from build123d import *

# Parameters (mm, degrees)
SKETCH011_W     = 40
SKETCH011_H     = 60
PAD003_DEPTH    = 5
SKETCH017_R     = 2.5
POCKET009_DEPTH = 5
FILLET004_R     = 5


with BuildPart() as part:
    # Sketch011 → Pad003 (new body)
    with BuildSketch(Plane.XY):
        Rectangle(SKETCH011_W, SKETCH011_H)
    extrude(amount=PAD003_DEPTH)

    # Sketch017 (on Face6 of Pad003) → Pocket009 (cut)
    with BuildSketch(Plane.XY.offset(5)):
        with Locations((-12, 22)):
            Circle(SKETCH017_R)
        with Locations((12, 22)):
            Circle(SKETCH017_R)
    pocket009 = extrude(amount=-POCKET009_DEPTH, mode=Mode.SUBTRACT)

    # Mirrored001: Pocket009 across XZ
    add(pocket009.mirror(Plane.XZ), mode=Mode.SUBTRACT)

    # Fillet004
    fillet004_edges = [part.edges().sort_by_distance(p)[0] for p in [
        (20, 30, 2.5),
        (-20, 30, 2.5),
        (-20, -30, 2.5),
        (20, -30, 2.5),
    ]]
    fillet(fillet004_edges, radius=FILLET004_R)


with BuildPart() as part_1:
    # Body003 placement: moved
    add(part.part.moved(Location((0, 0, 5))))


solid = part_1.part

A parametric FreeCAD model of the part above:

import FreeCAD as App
import Part
import Sketcher

V = App.Vector
Q = App.Units.Quantity


def edges_at(feature, points):
    """Names of the edges that pass closest to the given points."""
    edges = feature.Shape.Edges
    near = lambda p: min(range(len(edges)), key=lambda i: edges[i].distToShape(Part.Vertex(*p))[0])
    return sorted({f"Edge{near(p) + 1}" for p in points})

doc = App.newDocument("Part")
body = doc.addObject("PartDesign::Body", "Body")

# Sketch on XY plane
sketch1 = body.newObject("Sketcher::SketchObject", "Sketch")
sketch1.AttachmentSupport = (doc.getObject("XY_Plane"), [""])
sketch1.MapMode = "FlatFace"
sketch1.addGeometry(Part.LineSegment(V(-20, 30, 0), V(-20, -30, 0)), False)
sketch1.addGeometry(Part.LineSegment(V(-20, -30, 0), V(20, -30, 0)), False)
sketch1.addGeometry(Part.LineSegment(V(20, -30, 0), V(20, 30, 0)), False)
sketch1.addGeometry(Part.LineSegment(V(20, 30, 0), V(-20, 30, 0)), False)
sketch1.addConstraint(Sketcher.Constraint("Coincident", 0, 2, 1, 1))
sketch1.addConstraint(Sketcher.Constraint("Coincident", 1, 2, 2, 1))
sketch1.addConstraint(Sketcher.Constraint("Coincident", 2, 2, 3, 1))
sketch1.addConstraint(Sketcher.Constraint("Coincident", 3, 2, 0, 1))
sketch1.addConstraint(Sketcher.Constraint("Vertical", 0))
sketch1.addConstraint(Sketcher.Constraint("Horizontal", 1))
sketch1.addConstraint(Sketcher.Constraint("Vertical", 2))
sketch1.addConstraint(Sketcher.Constraint("Horizontal", 3))
sketch1.addConstraint(Sketcher.Constraint("Symmetric", 0, 2, 2, 2, -1, 1))
sketch1.addConstraint(Sketcher.Constraint("DistanceX", 1, 1, 1, 2, Q("40 mm")))
sketch1.addConstraint(Sketcher.Constraint("DistanceY", 0, 2, 0, 1, Q("60 mm")))
pad1 = body.newObject("PartDesign::Pad", "Pad")
pad1.Profile = sketch1
pad1.Length = 5

# Sketch on XY plane
sketch2 = body.newObject("Sketcher::SketchObject", "Sketch001")
sketch2.AttachmentSupport = (doc.getObject("XY_Plane"), [""])
sketch2.MapMode = "FlatFace"
sketch2.AttachmentOffset = App.Placement(V(0, 0, 5), App.Rotation())
sketch2.addGeometry(Part.Circle(V(-12, 22, 0), V(0, 0, 1), 2.5), False)
sketch2.addGeometry(Part.Circle(V(12, 22, 0), V(0, 0, 1), 2.5), False)
sketch2.addConstraint(Sketcher.Constraint("Equal", 0, 1))
sketch2.addConstraint(Sketcher.Constraint("Symmetric", 0, 3, 1, 3, -2))
sketch2.addConstraint(Sketcher.Constraint("Diameter", 0, Q("5 mm")))
sketch2.addConstraint(Sketcher.Constraint("DistanceX", 0, 3, -1, 1, Q("12 mm")))
sketch2.addConstraint(Sketcher.Constraint("DistanceY", -1, 1, 0, 3, Q("22 mm")))
pocket1 = body.newObject("PartDesign::Pocket", "Pocket")
pocket1.Profile = sketch2
pocket1.Length = 5
doc.recompute()

mirrored = body.newObject("PartDesign::Mirrored", "Mirrored")
mirrored.Originals = [pocket1]
mirrored.MirrorPlane = (doc.getObject("XZ_Plane"), [""])
body.Tip = mirrored
doc.recompute()

fillet = body.newObject("PartDesign::Fillet", "Fillet")
fillet.Base = (mirrored, edges_at(mirrored, [
    (20, 30, 2.5),
    (-20, 30, 2.5),
    (-20, -30, 2.5),
    (20, -30, 2.5),
]))
fillet.Radius = 5
body2 = doc.addObject("PartDesign::Body", "Body001")
doc.recompute()

body.Placement = App.Placement(V(0, 0, 5), App.Rotation(V(0, 0, 1), 0))
boolean = body2.newObject("PartDesign::Boolean", "Boolean")
boolean.Type = "Fuse"
boolean.addObjects([body])

doc.recompute()
